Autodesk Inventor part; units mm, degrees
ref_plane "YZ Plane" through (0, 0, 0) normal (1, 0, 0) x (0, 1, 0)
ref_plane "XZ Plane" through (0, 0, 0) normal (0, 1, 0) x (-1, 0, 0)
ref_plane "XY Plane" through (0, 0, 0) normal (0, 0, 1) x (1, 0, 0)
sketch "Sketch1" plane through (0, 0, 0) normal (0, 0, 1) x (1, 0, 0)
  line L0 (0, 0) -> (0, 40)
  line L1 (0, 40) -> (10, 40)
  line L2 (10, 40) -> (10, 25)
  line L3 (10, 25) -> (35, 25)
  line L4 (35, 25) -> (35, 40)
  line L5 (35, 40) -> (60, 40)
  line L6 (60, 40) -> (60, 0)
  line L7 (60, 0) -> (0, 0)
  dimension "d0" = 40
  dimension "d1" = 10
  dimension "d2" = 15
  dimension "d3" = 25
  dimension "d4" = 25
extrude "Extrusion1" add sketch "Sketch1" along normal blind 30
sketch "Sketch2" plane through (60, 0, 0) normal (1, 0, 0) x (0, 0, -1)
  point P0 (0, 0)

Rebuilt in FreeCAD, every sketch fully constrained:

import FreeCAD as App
import Part
import Sketcher

doc = App.newDocument("Part")
body = doc.addObject("PartDesign::Body", "Body")

sketch1 = body.newObject("Sketcher::SketchObject", "Sketch")
sketch1.AttachmentSupport = (doc.getObject("XY_Plane"), [""])
sketch1.MapMode = "FlatFace"
sketch1.addGeometry([
    Part.LineSegment(App.Vector(0, 40, 0), App.Vector(0, 0, 0)),
    Part.LineSegment(App.Vector(0, 0, 0), App.Vector(60, 0, 0)),
    Part.LineSegment(App.Vector(60, 0, 0), App.Vector(60, 40, 0)),
    Part.LineSegment(App.Vector(60, 40, 0), App.Vector(35, 40, 0)),
    Part.LineSegment(App.Vector(35, 40, 0), App.Vector(35, 25, 0)),
    Part.LineSegment(App.Vector(35, 25, 0), App.Vector(10, 25, 0)),
    Part.LineSegment(App.Vector(10, 25, 0), App.Vector(10, 40, 0)),
    Part.LineSegment(App.Vector(10, 40, 0), App.Vector(0, 40, 0)),
], False)
sketch1.addConstraint([
    Sketcher.Constraint("Coincident", 0, 2, 1, 1),
    Sketcher.Constraint("Coincident", 1, 2, 2, 1),
    Sketcher.Constraint("Coincident", 2, 2, 3, 1),
    Sketcher.Constraint("Coincident", 3, 2, 4, 1),
    Sketcher.Constraint("Coincident", 4, 2, 5, 1),
    Sketcher.Constraint("Coincident", 5, 2, 6, 1),
    Sketcher.Constraint("Coincident", 6, 2, 7, 1),
    Sketcher.Constraint("Coincident", 7, 2, 0, 1),
    Sketcher.Constraint("Vertical", 0),
    Sketcher.Constraint("Horizontal", 1),
    Sketcher.Constraint("Vertical", 2),
    Sketcher.Constraint("Horizontal", 3),
    Sketcher.Constraint("Vertical", 4),
    Sketcher.Constraint("Horizontal", 5),
    Sketcher.Constraint("Vertical", 6),
    Sketcher.Constraint("Horizontal", 7),
    Sketcher.Constraint("Coincident", 0, 2, -1, 1),
    Sketcher.Constraint("Horizontal", 3, 2, 6, 2),
    Sketcher.Constraint("Equal", 3, 5),
    Sketcher.Constraint("DistanceX", 3, 2, 3, 1, 25.0),
    Sketcher.Constraint("DistanceX", 7, 2, 7, 1, 10.0),
    Sketcher.Constraint("DistanceY", 0, 2, 0, 1, 40.0),
    Sketcher.Constraint("DistanceY", 4, 2, 4, 1, 15.0),
])
pad1 = body.newObject("PartDesign::Pad", "Pad")
pad1.Profile = sketch1
pad1.Length = 30

doc.recompute()
